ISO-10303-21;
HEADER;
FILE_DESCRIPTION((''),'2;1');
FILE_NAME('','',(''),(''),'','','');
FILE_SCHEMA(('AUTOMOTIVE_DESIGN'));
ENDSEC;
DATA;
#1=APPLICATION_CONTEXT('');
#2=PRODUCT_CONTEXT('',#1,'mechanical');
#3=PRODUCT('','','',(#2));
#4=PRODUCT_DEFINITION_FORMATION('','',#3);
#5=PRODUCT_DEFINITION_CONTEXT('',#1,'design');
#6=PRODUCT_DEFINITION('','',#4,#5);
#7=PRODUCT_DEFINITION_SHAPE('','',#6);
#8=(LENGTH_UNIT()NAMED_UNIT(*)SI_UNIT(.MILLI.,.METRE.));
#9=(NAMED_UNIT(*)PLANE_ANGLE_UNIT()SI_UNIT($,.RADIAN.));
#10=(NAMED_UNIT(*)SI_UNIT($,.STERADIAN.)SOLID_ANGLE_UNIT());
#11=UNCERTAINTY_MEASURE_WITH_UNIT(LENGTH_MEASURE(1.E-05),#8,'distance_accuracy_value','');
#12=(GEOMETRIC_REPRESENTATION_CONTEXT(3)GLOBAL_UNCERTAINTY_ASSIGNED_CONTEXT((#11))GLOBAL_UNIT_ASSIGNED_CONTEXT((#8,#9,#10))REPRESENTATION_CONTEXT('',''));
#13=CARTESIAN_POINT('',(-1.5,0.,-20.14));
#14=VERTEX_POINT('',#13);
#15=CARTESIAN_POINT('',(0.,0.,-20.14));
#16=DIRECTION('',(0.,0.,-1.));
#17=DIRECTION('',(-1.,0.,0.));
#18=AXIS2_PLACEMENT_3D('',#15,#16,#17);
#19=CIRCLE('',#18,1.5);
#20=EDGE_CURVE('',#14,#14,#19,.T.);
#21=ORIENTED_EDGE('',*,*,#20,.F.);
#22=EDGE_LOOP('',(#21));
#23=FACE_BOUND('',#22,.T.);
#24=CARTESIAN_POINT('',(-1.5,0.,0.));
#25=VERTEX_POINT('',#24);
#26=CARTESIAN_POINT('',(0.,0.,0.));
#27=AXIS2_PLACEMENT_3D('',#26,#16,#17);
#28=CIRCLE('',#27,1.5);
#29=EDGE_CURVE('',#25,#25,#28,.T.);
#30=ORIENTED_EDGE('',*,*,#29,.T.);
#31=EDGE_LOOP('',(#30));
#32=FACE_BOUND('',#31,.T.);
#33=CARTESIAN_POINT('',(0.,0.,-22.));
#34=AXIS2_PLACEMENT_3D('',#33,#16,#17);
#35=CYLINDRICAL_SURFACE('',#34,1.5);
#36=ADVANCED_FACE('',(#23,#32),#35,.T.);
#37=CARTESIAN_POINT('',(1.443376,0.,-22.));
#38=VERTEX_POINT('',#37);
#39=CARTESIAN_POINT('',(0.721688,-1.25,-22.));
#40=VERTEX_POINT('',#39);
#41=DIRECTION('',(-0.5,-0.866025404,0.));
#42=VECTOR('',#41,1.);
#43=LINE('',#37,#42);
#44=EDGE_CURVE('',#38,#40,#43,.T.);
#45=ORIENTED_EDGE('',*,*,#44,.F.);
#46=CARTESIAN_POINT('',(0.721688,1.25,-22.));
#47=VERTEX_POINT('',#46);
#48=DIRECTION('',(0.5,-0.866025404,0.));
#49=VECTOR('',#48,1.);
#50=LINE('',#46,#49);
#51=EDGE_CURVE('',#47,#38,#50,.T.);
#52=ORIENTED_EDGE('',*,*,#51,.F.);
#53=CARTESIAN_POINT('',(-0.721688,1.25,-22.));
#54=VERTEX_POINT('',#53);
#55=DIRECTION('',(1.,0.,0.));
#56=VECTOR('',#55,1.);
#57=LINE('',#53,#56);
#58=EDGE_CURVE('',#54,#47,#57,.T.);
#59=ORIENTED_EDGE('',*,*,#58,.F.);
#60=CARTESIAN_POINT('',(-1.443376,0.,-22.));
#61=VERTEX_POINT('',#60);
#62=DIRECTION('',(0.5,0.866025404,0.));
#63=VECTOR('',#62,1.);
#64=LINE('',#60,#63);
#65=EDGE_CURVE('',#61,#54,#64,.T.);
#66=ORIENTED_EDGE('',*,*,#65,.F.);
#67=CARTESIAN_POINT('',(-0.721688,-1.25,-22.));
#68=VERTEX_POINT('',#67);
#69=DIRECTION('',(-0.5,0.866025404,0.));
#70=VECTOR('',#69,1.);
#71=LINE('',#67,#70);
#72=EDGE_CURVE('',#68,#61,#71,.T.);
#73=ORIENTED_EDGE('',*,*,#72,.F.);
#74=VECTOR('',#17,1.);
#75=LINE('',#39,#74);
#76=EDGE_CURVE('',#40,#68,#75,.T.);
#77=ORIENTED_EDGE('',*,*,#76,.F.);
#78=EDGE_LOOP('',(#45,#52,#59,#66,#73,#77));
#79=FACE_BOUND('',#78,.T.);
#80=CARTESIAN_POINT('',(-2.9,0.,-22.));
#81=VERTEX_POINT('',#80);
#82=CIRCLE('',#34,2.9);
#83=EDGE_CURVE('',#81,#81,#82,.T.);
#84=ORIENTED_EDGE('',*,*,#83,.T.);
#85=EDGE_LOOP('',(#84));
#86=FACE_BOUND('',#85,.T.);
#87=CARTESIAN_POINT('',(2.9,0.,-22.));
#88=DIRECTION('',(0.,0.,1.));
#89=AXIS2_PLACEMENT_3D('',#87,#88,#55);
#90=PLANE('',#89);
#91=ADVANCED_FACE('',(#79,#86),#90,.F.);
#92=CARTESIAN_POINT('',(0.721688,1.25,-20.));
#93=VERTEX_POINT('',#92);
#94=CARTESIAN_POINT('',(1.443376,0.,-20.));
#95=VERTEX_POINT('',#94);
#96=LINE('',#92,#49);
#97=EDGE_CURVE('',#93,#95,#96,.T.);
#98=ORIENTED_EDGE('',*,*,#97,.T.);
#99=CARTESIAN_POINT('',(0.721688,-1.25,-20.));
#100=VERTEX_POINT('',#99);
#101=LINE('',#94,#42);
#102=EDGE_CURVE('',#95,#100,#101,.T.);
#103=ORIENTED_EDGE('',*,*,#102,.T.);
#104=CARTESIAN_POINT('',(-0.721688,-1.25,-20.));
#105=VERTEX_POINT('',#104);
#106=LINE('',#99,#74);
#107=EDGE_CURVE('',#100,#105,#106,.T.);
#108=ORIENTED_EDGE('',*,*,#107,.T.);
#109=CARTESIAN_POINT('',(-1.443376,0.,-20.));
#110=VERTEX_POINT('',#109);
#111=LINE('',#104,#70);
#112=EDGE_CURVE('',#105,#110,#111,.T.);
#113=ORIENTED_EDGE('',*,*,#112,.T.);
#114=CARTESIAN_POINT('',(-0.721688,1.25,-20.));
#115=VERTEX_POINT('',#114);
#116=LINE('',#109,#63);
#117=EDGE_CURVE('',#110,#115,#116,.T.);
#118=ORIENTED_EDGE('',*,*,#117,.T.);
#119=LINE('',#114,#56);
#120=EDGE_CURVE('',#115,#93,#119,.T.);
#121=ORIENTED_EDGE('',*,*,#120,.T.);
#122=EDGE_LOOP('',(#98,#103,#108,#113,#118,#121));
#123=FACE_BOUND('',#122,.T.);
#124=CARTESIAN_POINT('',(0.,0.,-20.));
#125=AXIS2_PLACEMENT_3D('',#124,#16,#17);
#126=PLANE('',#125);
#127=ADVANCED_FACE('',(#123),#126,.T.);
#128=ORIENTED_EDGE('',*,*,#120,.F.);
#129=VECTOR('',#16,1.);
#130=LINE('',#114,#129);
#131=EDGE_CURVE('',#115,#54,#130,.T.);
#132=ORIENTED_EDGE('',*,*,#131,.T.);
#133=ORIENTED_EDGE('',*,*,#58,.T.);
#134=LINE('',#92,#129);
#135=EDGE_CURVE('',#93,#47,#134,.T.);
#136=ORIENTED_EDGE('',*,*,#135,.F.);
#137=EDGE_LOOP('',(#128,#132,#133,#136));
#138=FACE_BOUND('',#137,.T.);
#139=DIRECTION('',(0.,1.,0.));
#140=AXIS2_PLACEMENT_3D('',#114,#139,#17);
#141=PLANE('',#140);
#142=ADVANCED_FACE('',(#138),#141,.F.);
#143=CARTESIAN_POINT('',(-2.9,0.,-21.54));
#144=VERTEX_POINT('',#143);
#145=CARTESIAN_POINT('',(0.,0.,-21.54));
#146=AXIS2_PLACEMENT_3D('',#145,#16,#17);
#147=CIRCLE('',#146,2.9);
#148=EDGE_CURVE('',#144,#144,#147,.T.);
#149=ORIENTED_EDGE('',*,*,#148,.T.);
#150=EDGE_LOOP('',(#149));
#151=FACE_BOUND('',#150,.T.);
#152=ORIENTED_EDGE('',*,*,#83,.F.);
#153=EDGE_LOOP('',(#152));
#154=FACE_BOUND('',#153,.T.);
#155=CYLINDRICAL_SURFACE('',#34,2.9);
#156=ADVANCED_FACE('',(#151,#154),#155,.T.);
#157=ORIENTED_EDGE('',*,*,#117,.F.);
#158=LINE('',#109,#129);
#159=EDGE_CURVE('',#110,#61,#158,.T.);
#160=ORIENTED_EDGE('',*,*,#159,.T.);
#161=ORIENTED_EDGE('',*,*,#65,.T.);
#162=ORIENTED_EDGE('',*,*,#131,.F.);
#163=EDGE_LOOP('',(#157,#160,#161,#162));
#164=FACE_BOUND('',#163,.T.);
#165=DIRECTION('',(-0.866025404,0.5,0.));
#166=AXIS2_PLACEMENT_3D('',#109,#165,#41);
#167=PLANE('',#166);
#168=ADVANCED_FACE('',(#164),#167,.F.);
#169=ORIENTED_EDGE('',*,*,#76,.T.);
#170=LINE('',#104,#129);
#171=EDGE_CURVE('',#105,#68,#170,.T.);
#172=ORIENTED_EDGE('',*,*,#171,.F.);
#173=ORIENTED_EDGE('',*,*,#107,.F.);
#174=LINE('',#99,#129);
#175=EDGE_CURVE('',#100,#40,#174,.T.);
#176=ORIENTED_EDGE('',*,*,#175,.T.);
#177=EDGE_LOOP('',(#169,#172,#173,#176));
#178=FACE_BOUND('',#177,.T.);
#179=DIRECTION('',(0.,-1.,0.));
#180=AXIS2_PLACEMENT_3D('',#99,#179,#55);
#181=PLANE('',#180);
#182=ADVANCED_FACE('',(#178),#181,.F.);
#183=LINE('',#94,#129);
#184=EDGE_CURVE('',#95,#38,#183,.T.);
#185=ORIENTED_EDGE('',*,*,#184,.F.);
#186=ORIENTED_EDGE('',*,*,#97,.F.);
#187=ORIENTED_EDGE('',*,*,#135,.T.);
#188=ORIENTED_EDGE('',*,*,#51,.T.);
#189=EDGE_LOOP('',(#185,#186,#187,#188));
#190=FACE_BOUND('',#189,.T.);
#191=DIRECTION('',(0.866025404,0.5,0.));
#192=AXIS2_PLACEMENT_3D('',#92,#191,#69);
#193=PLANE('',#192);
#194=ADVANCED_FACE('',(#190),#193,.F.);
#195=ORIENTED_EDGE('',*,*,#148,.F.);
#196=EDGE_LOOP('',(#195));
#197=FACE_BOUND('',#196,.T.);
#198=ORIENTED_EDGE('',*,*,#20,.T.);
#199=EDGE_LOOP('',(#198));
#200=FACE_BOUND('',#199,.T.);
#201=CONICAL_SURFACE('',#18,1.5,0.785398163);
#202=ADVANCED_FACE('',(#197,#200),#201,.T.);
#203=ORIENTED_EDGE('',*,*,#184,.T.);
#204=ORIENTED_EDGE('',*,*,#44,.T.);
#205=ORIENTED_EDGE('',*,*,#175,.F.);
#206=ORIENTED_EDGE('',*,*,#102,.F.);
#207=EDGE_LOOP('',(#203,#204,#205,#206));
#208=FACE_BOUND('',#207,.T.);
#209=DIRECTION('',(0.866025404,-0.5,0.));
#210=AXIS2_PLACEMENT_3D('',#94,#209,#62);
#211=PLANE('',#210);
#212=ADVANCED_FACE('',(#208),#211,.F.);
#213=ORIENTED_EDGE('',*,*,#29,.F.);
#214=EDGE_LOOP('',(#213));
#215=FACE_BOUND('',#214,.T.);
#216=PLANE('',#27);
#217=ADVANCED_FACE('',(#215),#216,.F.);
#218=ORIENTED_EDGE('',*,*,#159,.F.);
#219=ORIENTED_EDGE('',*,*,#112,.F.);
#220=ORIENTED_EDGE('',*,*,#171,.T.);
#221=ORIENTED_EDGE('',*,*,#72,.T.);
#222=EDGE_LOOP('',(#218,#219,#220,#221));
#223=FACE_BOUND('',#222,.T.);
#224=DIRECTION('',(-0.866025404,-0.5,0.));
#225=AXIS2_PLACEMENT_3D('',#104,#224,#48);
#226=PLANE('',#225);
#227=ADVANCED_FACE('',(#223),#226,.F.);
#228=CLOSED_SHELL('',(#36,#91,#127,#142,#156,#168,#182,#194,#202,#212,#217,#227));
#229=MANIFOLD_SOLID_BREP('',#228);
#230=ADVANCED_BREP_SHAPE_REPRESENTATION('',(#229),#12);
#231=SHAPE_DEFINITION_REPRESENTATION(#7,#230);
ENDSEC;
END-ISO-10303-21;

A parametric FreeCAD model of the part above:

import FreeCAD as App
import Part
import Sketcher
Q = App.Units.Quantity


def add_polygon(sketch, points):
    """Adds a closed chain of lines whose ends are joined by coincident constraints."""
    first, n = sketch.GeometryCount, len(points)
    for a, b in zip(points, points[1:] + points[:1]):
        sketch.addGeometry(Part.LineSegment(App.Vector(*a, 0), App.Vector(*b, 0)), False)
    for i in range(n):
        sketch.addConstraint(Sketcher.Constraint("Coincident", first + i, 2, first + (i + 1) % n, 1))

doc = App.newDocument("Part")
params = doc.addObject("Spreadsheet::Sheet", "Params")
for row, (alias, value) in enumerate([
    ("sketch1_height", "22 mm"),
    ("sketch1_width", "1.5 mm"),
    ("sketch1_width2", "2.9 mm"),
    ("sketch1_height2", "20.14 mm"),
    ("revolution_angle", "360 deg"),
    ("pocket1_length", "2 mm"),
], start=1):
    params.set(f"A{row}", alias)
    params.set(f"B{row}", "=" + value)
    params.setAlias(f"B{row}", alias)

body = doc.addObject("PartDesign::Body", "Body")

# Sketch on XZ plane
sketch1 = body.newObject("Sketcher::SketchObject", "Sketch")
sketch1.AttachmentSupport = (doc.getObject("XZ_Plane"), [""])
sketch1.MapMode = "FlatFace"
add_polygon(sketch1, [(0, 0), (1.5, 0), (1.5, -20.14), (2.9, -21.54), (2.9, -22), (0, -22)])  # lines 0-5
sketch1.addConstraint([
    Sketcher.Constraint("Horizontal", 0),
    Sketcher.Constraint("Vertical", 1),
    Sketcher.Constraint("Vertical", 3),
    Sketcher.Constraint("Horizontal", 4),
    Sketcher.Constraint("Vertical", 5),
    Sketcher.Constraint("Coincident", 5, 2, -1, 1),
    Sketcher.Constraint("DistanceY", 5, 1, 5, 2, 22.0),
    Sketcher.Constraint("Angle", 2, Q("-45 deg")),
    Sketcher.Constraint("DistanceX", 0, 1, 0, 2, 1.5),
    Sketcher.Constraint("DistanceX", 4, 2, 4, 1, 2.9),
    Sketcher.Constraint("DistanceY", 1, 2, 1, 1, 20.14),
])
sketch1.setExpression("Constraints[12]", "Params.sketch1_height")
sketch1.setExpression("Constraints[14]", "Params.sketch1_width")
sketch1.setExpression("Constraints[15]", "Params.sketch1_width2")
sketch1.setExpression("Constraints[16]", "Params.sketch1_height2")
revolution = body.newObject("PartDesign::Revolution", "Revolution")
revolution.Profile = sketch1
revolution.ReferenceAxis = (sketch1, ["V_Axis"])
revolution.setExpression("Angle", "Params.revolution_angle")

# Sketch on XY plane
sketch2 = body.newObject("Sketcher::SketchObject", "Sketch001")
sketch2.AttachmentSupport = (doc.getObject("XY_Plane"), [""])
sketch2.MapMode = "FlatFace"
sketch2.AttachmentOffset = App.Placement(App.Vector(0, 0, -22), App.Rotation())
add_polygon(sketch2, [(0.721688, -1.25), (-0.721688, -1.25), (-1.443376, 0), (-0.721688, 1.25), (0.721688, 1.25), (1.443376, 0)])  # lines 0-5
sketch2.addConstraint([
    Sketcher.Constraint("Horizontal", 0),
    Sketcher.Constraint("Horizontal", 3),
    Sketcher.Constraint("Symmetric", 0, 2, 3, 2, -1, 1),
    Sketcher.Constraint("Symmetric", 1, 2, 4, 2, -1, 1),
    Sketcher.Constraint("PointOnObject", 1, 2, -1),
    Sketcher.Constraint("Parallel", 2, 5),
    Sketcher.Constraint("Vertical", 0, 2, 2, 2),
    Sketcher.Constraint("Angle", 1, Q("120 deg")),
    Sketcher.Constraint("DistanceY", 0, 2, 2, 2, 2.5),
    Sketcher.Constraint("DistanceX", 0, 2, 0, 1, 1.443376),
])
pocket1 = body.newObject("PartDesign::Pocket", "Pocket")
pocket1.Profile = sketch2
pocket1.setExpression("Length", "Params.pocket1_length")
pocket1.Reversed = True

doc.recompute()
